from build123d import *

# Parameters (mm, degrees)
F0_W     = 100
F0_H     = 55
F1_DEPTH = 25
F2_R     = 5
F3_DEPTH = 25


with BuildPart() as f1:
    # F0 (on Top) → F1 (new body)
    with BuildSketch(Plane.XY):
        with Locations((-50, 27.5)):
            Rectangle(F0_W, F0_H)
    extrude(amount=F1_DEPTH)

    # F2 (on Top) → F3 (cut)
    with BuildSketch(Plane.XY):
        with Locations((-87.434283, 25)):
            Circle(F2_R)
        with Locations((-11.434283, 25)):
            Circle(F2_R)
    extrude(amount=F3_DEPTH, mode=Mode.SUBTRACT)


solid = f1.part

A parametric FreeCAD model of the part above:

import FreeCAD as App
import Part
import Sketcher

doc = App.newDocument("Part")
body = doc.addObject("PartDesign::Body", "Body")

# Sketch on XY plane
sketch1 = body.newObject("Sketcher::SketchObject", "Sketch")
sketch1.AttachmentSupport = (doc.getObject("XY_Plane"), [""])
sketch1.MapMode = "FlatFace"
sketch1.addGeometry([
    Part.LineSegment(App.Vector(-100, 55, 0), App.Vector(-100, 0, 0)),
    Part.LineSegment(App.Vector(-100, 0, 0), App.Vector(0, 0, 0)),
    Part.LineSegment(App.Vector(0, 0, 0), App.Vector(0, 55, 0)),
    Part.LineSegment(App.Vector(0, 55, 0), App.Vector(-100, 55, 0)),
], False)
sketch1.addConstraint([
    Sketcher.Constraint("Coincident", 0, 2, 1, 1),
    Sketcher.Constraint("Coincident", 1, 2, 2, 1),
    Sketcher.Constraint("Coincident", 2, 2, 3, 1),
    Sketcher.Constraint("Coincident", 3, 2, 0, 1),
    Sketcher.Constraint("Vertical", 0),
    Sketcher.Constraint("Horizontal", 1),
    Sketcher.Constraint("Vertical", 2),
    Sketcher.Constraint("Horizontal", 3),
    Sketcher.Constraint("Coincident", 1, 2, -1, 1),
    Sketcher.Constraint("DistanceX", 1, 1, 1, 2, 100.0),
    Sketcher.Constraint("DistanceY", 0, 2, 0, 1, 55.0),
])
pad1 = body.newObject("PartDesign::Pad", "Pad")
pad1.Profile = sketch1
pad1.Length = 25

# Sketch on XY plane
sketch2 = body.newObject("Sketcher::SketchObject", "Sketch001")
sketch2.AttachmentSupport = (doc.getObject("XY_Plane"), [""])
sketch2.MapMode = "FlatFace"
sketch2.addGeometry([
    Part.Circle(App.Vector(-87.434283, 25, 0), App.Vector(0, 0, 1), 5),
    Part.Circle(App.Vector(-11.434283, 25, 0), App.Vector(0, 0, 1), 5),
], False)
sketch2.addConstraint([
    Sketcher.Constraint("Equal", 0, 1),
    Sketcher.Constraint("Horizontal", 0, 3, 1, 3),
    Sketcher.Constraint("Diameter", 0, 10.0),
    Sketcher.Constraint("DistanceY", -1, 1, 0, 3, 25.0),
    Sketcher.Constraint("DistanceX", 0, 3, 1, 3, 76.0),
    Sketcher.Constraint("DistanceX", 0, 3, -1, 1, 87.434283),
])
pocket1 = body.newObject("PartDesign::Pocket", "Pocket")
pocket1.Profile = sketch2
pocket1.Length = 25
pocket1.Reversed = True

doc.recompute()
